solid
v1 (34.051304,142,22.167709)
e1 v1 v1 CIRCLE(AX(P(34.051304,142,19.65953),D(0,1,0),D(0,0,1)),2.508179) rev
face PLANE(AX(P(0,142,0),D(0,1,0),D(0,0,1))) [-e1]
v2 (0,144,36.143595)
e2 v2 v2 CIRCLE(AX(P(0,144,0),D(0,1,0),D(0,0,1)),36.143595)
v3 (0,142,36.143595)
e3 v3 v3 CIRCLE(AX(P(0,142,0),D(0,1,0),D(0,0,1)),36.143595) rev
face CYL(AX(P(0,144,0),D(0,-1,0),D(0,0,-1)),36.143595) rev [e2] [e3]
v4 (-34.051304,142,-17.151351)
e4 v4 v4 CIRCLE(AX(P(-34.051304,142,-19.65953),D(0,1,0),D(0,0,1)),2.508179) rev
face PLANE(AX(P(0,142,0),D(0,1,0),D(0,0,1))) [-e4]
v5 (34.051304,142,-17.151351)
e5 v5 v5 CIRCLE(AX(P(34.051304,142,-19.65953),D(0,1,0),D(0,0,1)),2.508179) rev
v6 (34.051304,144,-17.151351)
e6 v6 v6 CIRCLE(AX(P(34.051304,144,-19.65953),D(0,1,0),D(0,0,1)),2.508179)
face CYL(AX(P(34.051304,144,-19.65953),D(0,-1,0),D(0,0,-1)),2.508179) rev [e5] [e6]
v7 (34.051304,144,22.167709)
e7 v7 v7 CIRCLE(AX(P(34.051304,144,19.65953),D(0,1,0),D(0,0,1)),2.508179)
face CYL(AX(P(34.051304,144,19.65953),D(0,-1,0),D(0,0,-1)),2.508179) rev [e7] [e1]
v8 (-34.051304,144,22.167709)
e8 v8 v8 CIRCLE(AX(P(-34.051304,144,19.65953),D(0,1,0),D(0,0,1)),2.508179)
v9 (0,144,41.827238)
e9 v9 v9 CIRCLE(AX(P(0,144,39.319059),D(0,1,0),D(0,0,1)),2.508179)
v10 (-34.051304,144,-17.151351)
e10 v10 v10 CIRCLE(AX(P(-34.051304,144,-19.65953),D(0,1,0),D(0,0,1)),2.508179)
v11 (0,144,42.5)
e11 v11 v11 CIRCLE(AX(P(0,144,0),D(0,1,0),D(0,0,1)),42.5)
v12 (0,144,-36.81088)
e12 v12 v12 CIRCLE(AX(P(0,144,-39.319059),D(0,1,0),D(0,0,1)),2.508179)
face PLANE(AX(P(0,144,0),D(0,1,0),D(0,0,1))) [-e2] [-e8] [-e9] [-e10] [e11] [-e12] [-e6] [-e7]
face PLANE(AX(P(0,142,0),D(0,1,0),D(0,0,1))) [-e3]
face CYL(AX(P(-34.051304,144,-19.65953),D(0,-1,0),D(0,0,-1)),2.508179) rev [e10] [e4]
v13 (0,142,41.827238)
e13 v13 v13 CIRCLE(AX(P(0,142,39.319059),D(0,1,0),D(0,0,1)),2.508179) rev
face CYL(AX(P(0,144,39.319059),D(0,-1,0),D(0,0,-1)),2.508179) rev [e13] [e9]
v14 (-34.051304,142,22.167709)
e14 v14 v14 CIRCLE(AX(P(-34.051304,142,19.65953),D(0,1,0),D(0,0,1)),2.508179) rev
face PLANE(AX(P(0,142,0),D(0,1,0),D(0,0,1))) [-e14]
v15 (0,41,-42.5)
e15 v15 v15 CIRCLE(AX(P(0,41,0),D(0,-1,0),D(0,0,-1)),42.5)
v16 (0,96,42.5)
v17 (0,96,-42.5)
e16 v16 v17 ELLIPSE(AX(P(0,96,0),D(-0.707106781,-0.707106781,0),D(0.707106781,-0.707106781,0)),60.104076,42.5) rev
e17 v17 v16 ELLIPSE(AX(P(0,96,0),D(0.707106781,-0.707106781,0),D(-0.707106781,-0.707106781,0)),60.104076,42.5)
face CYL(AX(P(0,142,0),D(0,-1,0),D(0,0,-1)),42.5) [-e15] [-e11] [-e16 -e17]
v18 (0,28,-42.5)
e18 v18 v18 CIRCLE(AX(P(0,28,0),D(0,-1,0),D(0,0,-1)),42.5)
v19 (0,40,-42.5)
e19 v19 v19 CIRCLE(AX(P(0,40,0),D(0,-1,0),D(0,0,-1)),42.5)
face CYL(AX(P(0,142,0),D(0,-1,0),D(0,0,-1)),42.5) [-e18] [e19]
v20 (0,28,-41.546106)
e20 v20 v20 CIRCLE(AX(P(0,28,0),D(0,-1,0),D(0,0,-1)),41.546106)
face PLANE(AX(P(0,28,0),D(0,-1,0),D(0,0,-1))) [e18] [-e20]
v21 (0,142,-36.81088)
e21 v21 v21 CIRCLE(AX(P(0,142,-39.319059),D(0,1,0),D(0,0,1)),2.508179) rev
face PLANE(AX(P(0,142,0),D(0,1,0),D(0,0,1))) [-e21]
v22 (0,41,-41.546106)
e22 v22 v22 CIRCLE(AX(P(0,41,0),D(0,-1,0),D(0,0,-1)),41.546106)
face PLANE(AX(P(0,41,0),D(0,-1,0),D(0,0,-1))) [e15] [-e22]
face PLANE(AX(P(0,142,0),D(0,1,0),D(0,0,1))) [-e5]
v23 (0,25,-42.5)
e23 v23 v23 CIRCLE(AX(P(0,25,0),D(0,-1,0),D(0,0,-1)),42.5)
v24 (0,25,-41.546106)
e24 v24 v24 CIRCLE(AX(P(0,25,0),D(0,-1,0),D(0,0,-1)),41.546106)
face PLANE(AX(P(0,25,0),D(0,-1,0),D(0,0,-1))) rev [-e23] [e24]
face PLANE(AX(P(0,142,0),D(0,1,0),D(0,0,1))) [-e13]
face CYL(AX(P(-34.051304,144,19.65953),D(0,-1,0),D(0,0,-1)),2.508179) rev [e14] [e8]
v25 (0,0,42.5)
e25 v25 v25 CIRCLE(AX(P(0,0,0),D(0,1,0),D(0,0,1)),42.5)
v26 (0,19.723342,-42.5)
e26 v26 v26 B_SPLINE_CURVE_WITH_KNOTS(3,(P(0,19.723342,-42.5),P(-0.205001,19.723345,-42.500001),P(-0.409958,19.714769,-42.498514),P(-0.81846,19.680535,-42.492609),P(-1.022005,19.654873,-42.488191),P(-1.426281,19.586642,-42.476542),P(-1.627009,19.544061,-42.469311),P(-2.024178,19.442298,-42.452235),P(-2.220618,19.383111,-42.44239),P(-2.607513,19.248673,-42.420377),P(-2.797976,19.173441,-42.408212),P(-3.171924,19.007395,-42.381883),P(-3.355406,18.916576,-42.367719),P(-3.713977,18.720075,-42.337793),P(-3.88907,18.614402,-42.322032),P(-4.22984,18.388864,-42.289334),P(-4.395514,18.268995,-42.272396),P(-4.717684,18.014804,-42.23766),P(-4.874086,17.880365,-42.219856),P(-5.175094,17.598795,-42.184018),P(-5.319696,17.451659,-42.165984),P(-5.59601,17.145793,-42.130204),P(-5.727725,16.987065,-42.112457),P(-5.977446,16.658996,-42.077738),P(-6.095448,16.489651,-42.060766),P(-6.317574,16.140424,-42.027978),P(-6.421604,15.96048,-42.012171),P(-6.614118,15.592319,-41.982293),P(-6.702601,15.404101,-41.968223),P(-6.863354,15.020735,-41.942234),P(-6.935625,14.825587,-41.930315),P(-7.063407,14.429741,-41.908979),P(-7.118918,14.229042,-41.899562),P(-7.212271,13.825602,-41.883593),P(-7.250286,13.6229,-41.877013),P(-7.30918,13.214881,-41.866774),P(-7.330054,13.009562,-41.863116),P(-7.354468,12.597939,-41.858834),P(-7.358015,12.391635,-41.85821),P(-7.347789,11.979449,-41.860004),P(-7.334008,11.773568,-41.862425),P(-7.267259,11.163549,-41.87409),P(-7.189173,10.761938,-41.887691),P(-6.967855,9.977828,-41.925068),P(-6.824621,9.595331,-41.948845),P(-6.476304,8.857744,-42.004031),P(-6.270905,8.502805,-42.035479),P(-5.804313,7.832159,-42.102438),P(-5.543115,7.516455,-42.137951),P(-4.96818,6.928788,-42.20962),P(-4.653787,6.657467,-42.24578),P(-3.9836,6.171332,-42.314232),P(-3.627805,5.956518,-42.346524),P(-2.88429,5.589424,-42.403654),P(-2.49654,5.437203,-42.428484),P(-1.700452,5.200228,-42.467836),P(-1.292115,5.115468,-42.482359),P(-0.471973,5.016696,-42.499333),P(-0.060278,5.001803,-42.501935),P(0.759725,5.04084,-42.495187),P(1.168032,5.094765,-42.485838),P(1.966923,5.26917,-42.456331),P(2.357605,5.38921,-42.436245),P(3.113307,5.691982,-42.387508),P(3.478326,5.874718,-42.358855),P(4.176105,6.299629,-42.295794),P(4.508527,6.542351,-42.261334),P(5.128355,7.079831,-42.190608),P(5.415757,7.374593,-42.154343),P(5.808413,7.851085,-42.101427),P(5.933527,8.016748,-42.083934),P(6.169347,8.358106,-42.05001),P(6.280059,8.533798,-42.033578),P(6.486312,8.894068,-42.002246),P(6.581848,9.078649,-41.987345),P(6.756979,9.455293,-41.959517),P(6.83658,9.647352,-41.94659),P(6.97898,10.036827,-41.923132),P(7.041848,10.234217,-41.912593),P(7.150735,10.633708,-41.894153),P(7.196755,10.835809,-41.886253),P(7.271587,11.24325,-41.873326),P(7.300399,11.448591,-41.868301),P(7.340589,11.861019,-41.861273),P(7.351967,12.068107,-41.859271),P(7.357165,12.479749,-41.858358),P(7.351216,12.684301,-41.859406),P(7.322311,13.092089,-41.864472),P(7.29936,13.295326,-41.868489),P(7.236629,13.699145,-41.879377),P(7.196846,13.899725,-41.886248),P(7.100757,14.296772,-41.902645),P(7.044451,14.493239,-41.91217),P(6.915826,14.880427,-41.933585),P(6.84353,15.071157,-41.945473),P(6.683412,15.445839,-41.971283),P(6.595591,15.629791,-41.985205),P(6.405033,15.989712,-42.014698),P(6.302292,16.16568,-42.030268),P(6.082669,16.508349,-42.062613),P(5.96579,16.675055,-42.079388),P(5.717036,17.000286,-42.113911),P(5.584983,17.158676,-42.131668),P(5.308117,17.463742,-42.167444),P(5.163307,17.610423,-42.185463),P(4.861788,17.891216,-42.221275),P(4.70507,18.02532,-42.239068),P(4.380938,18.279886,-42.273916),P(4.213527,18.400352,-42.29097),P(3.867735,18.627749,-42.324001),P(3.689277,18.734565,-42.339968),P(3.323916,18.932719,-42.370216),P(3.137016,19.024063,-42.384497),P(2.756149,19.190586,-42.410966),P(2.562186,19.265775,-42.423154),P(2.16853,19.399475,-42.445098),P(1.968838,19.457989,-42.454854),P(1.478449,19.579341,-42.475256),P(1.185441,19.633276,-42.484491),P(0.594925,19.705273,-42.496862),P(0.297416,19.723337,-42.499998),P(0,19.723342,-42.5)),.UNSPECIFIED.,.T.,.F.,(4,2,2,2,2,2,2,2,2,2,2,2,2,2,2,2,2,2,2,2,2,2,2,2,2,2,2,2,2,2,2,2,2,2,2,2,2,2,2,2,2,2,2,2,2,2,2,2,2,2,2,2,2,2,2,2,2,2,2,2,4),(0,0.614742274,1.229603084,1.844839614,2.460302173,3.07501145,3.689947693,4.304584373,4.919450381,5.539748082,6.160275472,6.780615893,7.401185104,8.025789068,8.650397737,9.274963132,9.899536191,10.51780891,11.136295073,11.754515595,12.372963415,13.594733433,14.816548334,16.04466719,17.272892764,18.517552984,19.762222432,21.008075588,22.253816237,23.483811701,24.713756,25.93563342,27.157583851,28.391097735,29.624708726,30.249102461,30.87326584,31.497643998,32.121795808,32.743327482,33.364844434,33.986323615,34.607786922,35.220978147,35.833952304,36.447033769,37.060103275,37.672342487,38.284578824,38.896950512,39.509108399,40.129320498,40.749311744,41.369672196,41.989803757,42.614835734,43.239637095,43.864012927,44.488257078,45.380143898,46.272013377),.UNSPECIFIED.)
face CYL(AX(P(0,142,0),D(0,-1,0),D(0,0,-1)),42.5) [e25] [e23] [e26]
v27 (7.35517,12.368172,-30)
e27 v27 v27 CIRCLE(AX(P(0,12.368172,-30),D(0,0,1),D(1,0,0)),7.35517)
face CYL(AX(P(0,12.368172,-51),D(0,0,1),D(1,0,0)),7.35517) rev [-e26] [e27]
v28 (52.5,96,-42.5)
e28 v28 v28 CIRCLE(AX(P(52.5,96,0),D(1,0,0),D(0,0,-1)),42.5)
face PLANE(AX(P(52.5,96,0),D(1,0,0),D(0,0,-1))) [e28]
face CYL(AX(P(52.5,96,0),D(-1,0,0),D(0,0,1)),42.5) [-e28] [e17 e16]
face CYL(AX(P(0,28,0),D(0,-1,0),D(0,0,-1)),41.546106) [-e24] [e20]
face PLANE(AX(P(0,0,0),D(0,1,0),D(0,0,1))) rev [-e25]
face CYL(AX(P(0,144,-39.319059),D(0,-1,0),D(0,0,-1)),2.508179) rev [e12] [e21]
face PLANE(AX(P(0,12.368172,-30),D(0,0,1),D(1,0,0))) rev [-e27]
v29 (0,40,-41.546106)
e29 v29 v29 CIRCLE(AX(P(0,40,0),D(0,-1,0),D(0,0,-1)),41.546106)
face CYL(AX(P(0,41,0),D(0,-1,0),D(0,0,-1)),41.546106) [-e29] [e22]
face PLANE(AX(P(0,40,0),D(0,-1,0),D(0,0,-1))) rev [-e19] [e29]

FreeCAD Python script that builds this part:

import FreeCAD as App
import Part
import Sketcher

doc = App.newDocument("Part")
body = doc.addObject("PartDesign::Body", "Body")

sketch1 = body.newObject("Sketcher::SketchObject", "Sketch")
sketch1.AttachmentSupport = (doc.getObject("XZ_Plane"), [""])
sketch1.MapMode = "FlatFace"
sketch1.addGeometry(Part.Circle(App.Vector(0, 0, 0), App.Vector(0, 0, 1), 42), False)
sketch1.addConstraint([
    Sketcher.Constraint("Coincident", 0, 3, -1, 1),
    Sketcher.Constraint("Diameter", 0, 85.0),
])
pad1 = body.newObject("PartDesign::Pad", "Pad")
pad1.Profile = sketch1
pad1.Length = 142
pad1.Reversed = True

sketch2 = body.newObject("Sketcher::SketchObject", "Sketch001")
sketch2.AttachmentSupport = (doc.getObject("YZ_Plane"), [""])
sketch2.MapMode = "FlatFace"
sketch2.addGeometry(Part.Circle(App.Vector(96, 0, 0), App.Vector(0, 0, 1), 42), False)
sketch2.addConstraint([
    Sketcher.Constraint("PointOnObject", 0, 3, -1),
    Sketcher.Constraint("Diameter", 0, 85.0),
    Sketcher.Constraint("DistanceX", -1, 1, 0, 3, 96.0),
])
pad2 = body.newObject("PartDesign::Pad", "Pad001")
pad2.Profile = sketch2
pad2.Length = 52.5

sketch3 = body.newObject("Sketcher::SketchObject", "Sketch002")
sketch3.AttachmentSupport = (doc.getObject("XZ_Plane"), [""])
sketch3.MapMode = "FlatFace"
sketch3.AttachmentOffset = App.Placement(App.Vector(0, 0, -142), App.Rotation())
sketch3.addGeometry([
    Part.Circle(App.Vector(0, 0, 0), App.Vector(0, 0, 1), 42.5),
    Part.Circle(App.Vector(-34.1, -19.7, 0), App.Vector(0, 0, 1), 2.5),
    Part.Circle(App.Vector(0, -39.3, 0), App.Vector(0, 0, 1), 2.5),
    Part.Circle(App.Vector(-34.1, 19.7, 0), App.Vector(0, 0, 1), 2.5),
    Part.Circle(App.Vector(34.1, -19.7, 0), App.Vector(0, 0, 1), 2.5),
    Part.Circle(App.Vector(0, 0, 0), App.Vector(0, 0, 1), 36.1),
    Part.Circle(App.Vector(0, 39.3, 0), App.Vector(0, 0, 1), 2.5),
    Part.Circle(App.Vector(34.1, 19.7, 0), App.Vector(0, 0, 1), 2.5),
], False)
sketch3.addConstraint([
    Sketcher.Constraint("Coincident", 0, 3, -1, 1),
    Sketcher.Constraint("Coincident", 5, 3, -1, 1),
    Sketcher.Constraint("Equal", 1, 2),
    Sketcher.Constraint("Equal", 2, 3),
    Sketcher.Constraint("Equal", 3, 4),
    Sketcher.Constraint("Equal", 4, 6),
    Sketcher.Constraint("Equal", 6, 7),
    Sketcher.Constraint("Symmetric", 3, 3, 4, 3, -1, 1),
    Sketcher.Constraint("Symmetric", 2, 3, 6, 3, -1, 1),
    Sketcher.Constraint("Symmetric", 1, 3, 7, 3, -1, 1),
    Sketcher.Constraint("Symmetric", 1, 3, 4, 3, -2),
    Sketcher.Constraint("PointOnObject", 2, 3, -2),
    Sketcher.Constraint("Diameter", 0, 85.0),
    Sketcher.Constraint("Diameter", 5, 72.28719),
    Sketcher.Constraint("Diameter", 1, 5.016358),
    Sketcher.Constraint("DistanceY", 1, 3, -1, 1, 19.65953),
    Sketcher.Constraint("DistanceY", 2, 3, -1, 1, 39.319059),
    Sketcher.Constraint("DistanceX", 1, 3, 4, 3, 68.102609),
])
pad3 = body.newObject("PartDesign::Pad", "Pad002")
pad3.Profile = sketch3
pad3.Length = 2
pad3.Reversed = True

sketch4 = body.newObject("Sketcher::SketchObject", "Sketch003")
sketch4.AttachmentSupport = (doc.getObject("XZ_Plane"), [""])
sketch4.MapMode = "FlatFace"
sketch4.AttachmentOffset = App.Placement(App.Vector(0, 0, -25), App.Rotation())
sketch4.addGeometry([
    Part.Circle(App.Vector(0, 0, 0), App.Vector(0, 0, 1), 42),
    Part.Circle(App.Vector(0, 0, 0), App.Vector(0, 0, 1), 42),
], False)
sketch4.addConstraint([
    Sketcher.Constraint("Coincident", 0, 3, -1, 1),
    Sketcher.Constraint("Coincident", 1, 3, -1, 1),
    Sketcher.Constraint("Diameter", 0, 85.0),
    Sketcher.Constraint("Diameter", 1, 83.092211),
])
pocket1 = body.newObject("PartDesign::Pocket", "Pocket")
pocket1.Profile = sketch4
pocket1.Length = 3

sketch5 = body.newObject("Sketcher::SketchObject", "Sketch004")
sketch5.AttachmentSupport = (doc.getObject("XZ_Plane"), [""])
sketch5.MapMode = "FlatFace"
sketch5.AttachmentOffset = App.Placement(App.Vector(0, 0, -40), App.Rotation())
sketch5.addGeometry([
    Part.Circle(App.Vector(0, 0, 0), App.Vector(0, 0, 1), 42),
    Part.Circle(App.Vector(0, 0, 0), App.Vector(0, 0, 1), 42),
], False)
sketch5.addConstraint([
    Sketcher.Constraint("Coincident", 0, 3, -1, 1),
    Sketcher.Constraint("Coincident", 1, 3, -1, 1),
    Sketcher.Constraint("Diameter", 0, 85.0),
    Sketcher.Constraint("Diameter", 1, 83.092211),
])
pocket2 = body.newObject("PartDesign::Pocket", "Pocket001")
pocket2.Profile = sketch5
pocket2.Length = 1

sketch6 = body.newObject("Sketcher::SketchObject", "Sketch005")
sketch6.AttachmentSupport = (doc.getObject("XY_Plane"), [""])
sketch6.MapMode = "FlatFace"
sketch6.AttachmentOffset = App.Placement(App.Vector(0, 0, -30), App.Rotation())
sketch6.addGeometry(Part.Circle(App.Vector(0, 12, 0), App.Vector(0, 0, 1), 7), False)
sketch6.addConstraint([
    Sketcher.Constraint("PointOnObject", 0, 3, -2),
    Sketcher.Constraint("Diameter", 0, 14.710339),
    Sketcher.Constraint("DistanceY", -1, 1, 0, 3, 12.368172),
])
pocket3 = body.newObject("PartDesign::Pocket", "Pocket002")
pocket3.Profile = sketch6
pocket3.Length = 21

doc.recompute()
